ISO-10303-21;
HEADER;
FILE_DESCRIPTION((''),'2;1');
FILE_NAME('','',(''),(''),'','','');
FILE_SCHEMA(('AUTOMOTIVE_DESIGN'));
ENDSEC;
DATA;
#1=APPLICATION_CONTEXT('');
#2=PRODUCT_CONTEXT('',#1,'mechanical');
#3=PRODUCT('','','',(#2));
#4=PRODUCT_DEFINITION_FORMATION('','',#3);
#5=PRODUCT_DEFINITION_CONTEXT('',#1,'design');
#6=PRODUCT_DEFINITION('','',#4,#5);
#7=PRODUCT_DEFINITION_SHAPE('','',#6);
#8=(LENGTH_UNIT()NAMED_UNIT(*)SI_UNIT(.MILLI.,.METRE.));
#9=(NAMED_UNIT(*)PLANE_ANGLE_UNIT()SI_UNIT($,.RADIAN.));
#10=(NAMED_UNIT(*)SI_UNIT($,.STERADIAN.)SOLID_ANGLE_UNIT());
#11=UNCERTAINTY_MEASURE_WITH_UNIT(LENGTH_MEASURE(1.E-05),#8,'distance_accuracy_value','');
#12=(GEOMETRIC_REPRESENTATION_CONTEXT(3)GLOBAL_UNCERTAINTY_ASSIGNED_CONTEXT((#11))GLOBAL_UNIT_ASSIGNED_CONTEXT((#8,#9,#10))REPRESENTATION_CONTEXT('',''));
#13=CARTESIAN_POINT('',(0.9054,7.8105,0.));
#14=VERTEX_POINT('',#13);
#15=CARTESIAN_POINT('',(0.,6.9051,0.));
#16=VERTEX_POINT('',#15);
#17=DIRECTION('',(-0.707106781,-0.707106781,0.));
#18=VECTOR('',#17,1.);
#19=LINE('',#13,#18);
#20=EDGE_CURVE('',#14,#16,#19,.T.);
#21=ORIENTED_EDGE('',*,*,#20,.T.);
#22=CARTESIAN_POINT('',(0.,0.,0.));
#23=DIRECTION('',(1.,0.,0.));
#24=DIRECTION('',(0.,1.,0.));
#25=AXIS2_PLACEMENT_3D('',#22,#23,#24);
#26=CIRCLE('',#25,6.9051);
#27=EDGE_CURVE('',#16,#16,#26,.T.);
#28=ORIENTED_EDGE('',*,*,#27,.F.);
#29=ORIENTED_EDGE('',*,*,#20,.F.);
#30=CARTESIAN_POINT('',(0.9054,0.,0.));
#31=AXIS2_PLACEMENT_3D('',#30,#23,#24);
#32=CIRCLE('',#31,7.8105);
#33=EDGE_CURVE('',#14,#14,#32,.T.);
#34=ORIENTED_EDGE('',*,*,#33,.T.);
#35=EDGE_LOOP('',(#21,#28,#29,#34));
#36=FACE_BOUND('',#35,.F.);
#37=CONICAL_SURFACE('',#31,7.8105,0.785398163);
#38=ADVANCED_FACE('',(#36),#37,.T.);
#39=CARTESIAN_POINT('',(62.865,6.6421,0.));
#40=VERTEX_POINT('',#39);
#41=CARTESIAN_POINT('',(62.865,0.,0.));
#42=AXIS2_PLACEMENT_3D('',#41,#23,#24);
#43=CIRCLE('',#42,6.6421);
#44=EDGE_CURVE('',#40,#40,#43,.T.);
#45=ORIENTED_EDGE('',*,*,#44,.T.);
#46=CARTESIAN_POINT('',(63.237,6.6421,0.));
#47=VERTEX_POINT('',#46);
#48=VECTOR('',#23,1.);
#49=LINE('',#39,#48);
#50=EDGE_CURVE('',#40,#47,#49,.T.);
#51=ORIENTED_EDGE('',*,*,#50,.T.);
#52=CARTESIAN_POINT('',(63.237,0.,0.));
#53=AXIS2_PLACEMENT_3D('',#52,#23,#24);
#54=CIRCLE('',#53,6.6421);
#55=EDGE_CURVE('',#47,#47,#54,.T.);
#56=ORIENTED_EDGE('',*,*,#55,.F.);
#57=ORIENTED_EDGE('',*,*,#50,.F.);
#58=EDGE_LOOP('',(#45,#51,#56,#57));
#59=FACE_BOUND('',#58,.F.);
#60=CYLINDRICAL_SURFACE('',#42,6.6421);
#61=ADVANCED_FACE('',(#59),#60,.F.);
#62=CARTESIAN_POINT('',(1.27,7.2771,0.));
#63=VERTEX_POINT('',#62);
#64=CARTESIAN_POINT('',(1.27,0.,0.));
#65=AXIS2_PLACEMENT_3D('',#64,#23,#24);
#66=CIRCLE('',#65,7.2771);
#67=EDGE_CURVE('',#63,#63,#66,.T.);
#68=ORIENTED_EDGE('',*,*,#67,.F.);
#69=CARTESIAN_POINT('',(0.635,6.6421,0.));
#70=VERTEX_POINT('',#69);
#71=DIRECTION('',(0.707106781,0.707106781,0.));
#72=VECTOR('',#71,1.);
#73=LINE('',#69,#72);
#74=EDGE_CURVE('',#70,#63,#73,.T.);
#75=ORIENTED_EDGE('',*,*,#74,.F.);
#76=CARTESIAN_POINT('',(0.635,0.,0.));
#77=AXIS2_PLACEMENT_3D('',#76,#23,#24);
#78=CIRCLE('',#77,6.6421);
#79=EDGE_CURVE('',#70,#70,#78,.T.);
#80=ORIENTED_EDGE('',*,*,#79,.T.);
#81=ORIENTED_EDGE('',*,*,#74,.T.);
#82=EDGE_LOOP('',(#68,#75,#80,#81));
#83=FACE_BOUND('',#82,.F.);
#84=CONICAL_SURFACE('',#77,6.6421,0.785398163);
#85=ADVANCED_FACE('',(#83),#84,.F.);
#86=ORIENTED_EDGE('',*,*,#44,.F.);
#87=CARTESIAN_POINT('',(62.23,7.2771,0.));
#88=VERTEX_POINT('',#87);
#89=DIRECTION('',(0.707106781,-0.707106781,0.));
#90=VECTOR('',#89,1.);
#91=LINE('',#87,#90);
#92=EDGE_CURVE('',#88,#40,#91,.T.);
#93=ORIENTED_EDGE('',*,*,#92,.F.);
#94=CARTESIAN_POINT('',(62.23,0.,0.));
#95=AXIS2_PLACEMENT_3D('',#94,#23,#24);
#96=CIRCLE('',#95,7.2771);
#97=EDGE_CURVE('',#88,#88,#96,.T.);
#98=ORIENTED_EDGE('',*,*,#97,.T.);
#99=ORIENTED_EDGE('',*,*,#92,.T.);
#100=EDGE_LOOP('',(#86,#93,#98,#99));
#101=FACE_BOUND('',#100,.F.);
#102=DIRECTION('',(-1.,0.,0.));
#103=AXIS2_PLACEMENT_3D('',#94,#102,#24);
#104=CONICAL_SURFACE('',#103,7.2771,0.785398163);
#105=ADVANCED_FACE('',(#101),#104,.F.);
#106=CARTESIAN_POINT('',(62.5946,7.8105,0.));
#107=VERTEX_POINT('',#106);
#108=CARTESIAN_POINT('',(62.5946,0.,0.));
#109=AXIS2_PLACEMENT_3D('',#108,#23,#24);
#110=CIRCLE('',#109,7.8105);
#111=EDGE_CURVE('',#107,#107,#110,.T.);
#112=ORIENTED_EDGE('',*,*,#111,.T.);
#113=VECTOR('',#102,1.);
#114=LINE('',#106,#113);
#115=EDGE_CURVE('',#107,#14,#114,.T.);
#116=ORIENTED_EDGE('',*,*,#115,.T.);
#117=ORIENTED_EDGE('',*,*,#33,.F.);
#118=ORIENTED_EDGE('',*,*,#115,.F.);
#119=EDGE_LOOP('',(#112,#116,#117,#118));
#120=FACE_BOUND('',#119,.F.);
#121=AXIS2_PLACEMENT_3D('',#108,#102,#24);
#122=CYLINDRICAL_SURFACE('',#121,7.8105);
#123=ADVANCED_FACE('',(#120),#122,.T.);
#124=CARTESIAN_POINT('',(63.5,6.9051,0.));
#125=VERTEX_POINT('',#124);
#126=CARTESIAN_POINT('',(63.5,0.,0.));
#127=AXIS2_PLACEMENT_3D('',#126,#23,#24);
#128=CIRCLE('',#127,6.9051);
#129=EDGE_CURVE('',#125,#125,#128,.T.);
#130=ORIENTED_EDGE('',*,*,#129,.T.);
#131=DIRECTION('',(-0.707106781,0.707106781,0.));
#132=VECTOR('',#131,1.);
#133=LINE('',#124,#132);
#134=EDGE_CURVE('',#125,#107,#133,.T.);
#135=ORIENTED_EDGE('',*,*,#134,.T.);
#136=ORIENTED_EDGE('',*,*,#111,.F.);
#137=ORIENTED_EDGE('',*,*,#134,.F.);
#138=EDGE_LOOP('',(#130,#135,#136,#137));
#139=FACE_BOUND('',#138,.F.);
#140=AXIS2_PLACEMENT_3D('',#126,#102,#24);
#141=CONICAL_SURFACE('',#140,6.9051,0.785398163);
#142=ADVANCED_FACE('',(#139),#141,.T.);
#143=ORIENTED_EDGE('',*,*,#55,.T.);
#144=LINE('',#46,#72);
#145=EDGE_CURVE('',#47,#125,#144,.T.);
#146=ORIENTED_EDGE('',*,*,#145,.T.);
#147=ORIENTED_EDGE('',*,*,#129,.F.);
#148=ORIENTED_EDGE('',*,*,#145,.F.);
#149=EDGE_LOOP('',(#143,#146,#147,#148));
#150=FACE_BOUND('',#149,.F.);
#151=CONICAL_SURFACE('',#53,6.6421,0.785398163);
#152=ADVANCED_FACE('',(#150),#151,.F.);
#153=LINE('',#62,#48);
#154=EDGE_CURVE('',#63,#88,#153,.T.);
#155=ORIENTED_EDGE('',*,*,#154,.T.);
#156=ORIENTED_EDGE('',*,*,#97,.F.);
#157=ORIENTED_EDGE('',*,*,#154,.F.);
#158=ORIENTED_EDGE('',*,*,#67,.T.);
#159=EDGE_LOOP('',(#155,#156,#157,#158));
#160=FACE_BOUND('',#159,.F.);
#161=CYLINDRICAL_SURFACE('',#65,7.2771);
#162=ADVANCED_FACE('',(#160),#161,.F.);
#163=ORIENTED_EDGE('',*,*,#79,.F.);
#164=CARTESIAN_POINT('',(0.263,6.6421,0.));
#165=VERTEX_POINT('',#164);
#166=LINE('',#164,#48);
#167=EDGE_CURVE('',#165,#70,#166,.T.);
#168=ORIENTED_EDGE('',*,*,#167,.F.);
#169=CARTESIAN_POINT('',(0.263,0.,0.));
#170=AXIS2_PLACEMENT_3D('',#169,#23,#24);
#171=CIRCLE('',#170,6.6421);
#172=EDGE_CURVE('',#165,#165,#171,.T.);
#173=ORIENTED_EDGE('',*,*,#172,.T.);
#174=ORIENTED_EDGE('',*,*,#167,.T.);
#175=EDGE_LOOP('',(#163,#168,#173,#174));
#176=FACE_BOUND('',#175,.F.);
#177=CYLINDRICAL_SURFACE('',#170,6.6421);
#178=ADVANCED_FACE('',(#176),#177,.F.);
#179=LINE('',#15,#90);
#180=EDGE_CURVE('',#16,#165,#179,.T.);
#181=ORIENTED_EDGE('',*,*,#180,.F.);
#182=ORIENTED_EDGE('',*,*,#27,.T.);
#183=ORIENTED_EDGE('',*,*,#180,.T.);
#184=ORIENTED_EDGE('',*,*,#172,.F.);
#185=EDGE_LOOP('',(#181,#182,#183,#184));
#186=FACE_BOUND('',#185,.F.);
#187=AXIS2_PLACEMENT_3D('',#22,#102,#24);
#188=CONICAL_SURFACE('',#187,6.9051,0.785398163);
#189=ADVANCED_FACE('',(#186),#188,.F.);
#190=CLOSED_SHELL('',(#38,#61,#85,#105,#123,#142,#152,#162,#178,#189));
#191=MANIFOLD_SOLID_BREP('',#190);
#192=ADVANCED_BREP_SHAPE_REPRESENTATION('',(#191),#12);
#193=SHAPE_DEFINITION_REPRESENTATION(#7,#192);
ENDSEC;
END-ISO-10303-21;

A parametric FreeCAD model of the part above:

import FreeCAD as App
import Part
import Sketcher
from FreeCAD import Vector
Q = App.Units.Quantity

doc = App.newDocument("Part")
body = doc.addObject("PartDesign::Body", "Body")

# Sketch on XY plane
sketch1 = doc.addObject("Sketcher::SketchObject", "Sketch")
body.addObject(sketch1)
sketch1.AttachmentSupport = (doc.XY_Plane, [""])
sketch1.MapMode = "FlatFace"
sketch1.addGeometry([
    Part.LineSegment(Vector(0.91, 7.81, 0), Vector(0, 6.91, 0)),  # 0
    Part.LineSegment(Vector(0, 6.91, 0), Vector(0.26, 6.64, 0)),  # 1
    Part.LineSegment(Vector(0.26, 6.64, 0), Vector(0.64, 6.64, 0)),  # 2
    Part.LineSegment(Vector(0.64, 6.64, 0), Vector(1.27, 7.28, 0)),  # 3
    Part.LineSegment(Vector(1.27, 7.28, 0), Vector(62.23, 7.28, 0)),  # 4
    Part.LineSegment(Vector(62.23, 7.28, 0), Vector(62.87, 6.64, 0)),  # 5
    Part.LineSegment(Vector(62.87, 6.64, 0), Vector(63.24, 6.64, 0)),  # 6
    Part.LineSegment(Vector(63.24, 6.64, 0), Vector(63.5, 6.91, 0)),  # 7
    Part.LineSegment(Vector(63.5, 6.91, 0), Vector(62.59, 7.81, 0)),  # 8
    Part.LineSegment(Vector(62.59, 7.81, 0), Vector(0.91, 7.81, 0)),  # 9
], False)
sketch1.addConstraint([
    Sketcher.Constraint("Coincident", 0, 2, 1, 1),
    Sketcher.Constraint("Coincident", 1, 2, 2, 1),
    Sketcher.Constraint("Coincident", 2, 2, 3, 1),
    Sketcher.Constraint("Coincident", 3, 2, 4, 1),
    Sketcher.Constraint("Coincident", 4, 2, 5, 1),
    Sketcher.Constraint("Coincident", 5, 2, 6, 1),
    Sketcher.Constraint("Coincident", 6, 2, 7, 1),
    Sketcher.Constraint("Coincident", 7, 2, 8, 1),
    Sketcher.Constraint("Coincident", 8, 2, 9, 1),
    Sketcher.Constraint("Coincident", 9, 2, 0, 1),
    Sketcher.Constraint("Horizontal", 2),
    Sketcher.Constraint("Horizontal", 4),
    Sketcher.Constraint("Horizontal", 6),
    Sketcher.Constraint("Horizontal", 9),
    Sketcher.Constraint("PointOnObject", 0, 2, -2),
    Sketcher.Constraint("Perpendicular", 0, 1),
    Sketcher.Constraint("Perpendicular", 1, 3),
    Sketcher.Constraint("Perpendicular", 3, 5),
    Sketcher.Constraint("Perpendicular", 5, 7),
    Sketcher.Constraint("Perpendicular", 7, 8),
    Sketcher.Constraint("Horizontal", 2, 2, 5, 2),
    Sketcher.Constraint("Horizontal", 0, 2, 7, 2),
    Sketcher.Constraint("Equal", 2, 6),
    Sketcher.Constraint("Equal", 3, 5),
    Sketcher.Constraint("DistanceX", 4, 1, 4, 2, Q("2.4 in")),
    Sketcher.Constraint("DistanceX", -1, 1, 7, 2, Q("2.5 in")),
    Sketcher.Constraint("DistanceX", 2, 2, 5, 2, Q("2.45 in")),
    Sketcher.Constraint("DistanceX", 9, 2, 9, 1, Q("2.4287 in")),
    Sketcher.Constraint("DistanceY", 4, 2, 8, 2, Q("0.021 in")),
    Sketcher.Constraint("DistanceY", -1, 1, 1, 2, Q("0.2615 in")),
])
revolution = doc.addObject("PartDesign::Revolution", "Revolution")
body.addObject(revolution)
revolution.Profile = sketch1
revolution.ReferenceAxis = (sketch1, ["H_Axis"])
revolution.Angle = 360

doc.recompute()
